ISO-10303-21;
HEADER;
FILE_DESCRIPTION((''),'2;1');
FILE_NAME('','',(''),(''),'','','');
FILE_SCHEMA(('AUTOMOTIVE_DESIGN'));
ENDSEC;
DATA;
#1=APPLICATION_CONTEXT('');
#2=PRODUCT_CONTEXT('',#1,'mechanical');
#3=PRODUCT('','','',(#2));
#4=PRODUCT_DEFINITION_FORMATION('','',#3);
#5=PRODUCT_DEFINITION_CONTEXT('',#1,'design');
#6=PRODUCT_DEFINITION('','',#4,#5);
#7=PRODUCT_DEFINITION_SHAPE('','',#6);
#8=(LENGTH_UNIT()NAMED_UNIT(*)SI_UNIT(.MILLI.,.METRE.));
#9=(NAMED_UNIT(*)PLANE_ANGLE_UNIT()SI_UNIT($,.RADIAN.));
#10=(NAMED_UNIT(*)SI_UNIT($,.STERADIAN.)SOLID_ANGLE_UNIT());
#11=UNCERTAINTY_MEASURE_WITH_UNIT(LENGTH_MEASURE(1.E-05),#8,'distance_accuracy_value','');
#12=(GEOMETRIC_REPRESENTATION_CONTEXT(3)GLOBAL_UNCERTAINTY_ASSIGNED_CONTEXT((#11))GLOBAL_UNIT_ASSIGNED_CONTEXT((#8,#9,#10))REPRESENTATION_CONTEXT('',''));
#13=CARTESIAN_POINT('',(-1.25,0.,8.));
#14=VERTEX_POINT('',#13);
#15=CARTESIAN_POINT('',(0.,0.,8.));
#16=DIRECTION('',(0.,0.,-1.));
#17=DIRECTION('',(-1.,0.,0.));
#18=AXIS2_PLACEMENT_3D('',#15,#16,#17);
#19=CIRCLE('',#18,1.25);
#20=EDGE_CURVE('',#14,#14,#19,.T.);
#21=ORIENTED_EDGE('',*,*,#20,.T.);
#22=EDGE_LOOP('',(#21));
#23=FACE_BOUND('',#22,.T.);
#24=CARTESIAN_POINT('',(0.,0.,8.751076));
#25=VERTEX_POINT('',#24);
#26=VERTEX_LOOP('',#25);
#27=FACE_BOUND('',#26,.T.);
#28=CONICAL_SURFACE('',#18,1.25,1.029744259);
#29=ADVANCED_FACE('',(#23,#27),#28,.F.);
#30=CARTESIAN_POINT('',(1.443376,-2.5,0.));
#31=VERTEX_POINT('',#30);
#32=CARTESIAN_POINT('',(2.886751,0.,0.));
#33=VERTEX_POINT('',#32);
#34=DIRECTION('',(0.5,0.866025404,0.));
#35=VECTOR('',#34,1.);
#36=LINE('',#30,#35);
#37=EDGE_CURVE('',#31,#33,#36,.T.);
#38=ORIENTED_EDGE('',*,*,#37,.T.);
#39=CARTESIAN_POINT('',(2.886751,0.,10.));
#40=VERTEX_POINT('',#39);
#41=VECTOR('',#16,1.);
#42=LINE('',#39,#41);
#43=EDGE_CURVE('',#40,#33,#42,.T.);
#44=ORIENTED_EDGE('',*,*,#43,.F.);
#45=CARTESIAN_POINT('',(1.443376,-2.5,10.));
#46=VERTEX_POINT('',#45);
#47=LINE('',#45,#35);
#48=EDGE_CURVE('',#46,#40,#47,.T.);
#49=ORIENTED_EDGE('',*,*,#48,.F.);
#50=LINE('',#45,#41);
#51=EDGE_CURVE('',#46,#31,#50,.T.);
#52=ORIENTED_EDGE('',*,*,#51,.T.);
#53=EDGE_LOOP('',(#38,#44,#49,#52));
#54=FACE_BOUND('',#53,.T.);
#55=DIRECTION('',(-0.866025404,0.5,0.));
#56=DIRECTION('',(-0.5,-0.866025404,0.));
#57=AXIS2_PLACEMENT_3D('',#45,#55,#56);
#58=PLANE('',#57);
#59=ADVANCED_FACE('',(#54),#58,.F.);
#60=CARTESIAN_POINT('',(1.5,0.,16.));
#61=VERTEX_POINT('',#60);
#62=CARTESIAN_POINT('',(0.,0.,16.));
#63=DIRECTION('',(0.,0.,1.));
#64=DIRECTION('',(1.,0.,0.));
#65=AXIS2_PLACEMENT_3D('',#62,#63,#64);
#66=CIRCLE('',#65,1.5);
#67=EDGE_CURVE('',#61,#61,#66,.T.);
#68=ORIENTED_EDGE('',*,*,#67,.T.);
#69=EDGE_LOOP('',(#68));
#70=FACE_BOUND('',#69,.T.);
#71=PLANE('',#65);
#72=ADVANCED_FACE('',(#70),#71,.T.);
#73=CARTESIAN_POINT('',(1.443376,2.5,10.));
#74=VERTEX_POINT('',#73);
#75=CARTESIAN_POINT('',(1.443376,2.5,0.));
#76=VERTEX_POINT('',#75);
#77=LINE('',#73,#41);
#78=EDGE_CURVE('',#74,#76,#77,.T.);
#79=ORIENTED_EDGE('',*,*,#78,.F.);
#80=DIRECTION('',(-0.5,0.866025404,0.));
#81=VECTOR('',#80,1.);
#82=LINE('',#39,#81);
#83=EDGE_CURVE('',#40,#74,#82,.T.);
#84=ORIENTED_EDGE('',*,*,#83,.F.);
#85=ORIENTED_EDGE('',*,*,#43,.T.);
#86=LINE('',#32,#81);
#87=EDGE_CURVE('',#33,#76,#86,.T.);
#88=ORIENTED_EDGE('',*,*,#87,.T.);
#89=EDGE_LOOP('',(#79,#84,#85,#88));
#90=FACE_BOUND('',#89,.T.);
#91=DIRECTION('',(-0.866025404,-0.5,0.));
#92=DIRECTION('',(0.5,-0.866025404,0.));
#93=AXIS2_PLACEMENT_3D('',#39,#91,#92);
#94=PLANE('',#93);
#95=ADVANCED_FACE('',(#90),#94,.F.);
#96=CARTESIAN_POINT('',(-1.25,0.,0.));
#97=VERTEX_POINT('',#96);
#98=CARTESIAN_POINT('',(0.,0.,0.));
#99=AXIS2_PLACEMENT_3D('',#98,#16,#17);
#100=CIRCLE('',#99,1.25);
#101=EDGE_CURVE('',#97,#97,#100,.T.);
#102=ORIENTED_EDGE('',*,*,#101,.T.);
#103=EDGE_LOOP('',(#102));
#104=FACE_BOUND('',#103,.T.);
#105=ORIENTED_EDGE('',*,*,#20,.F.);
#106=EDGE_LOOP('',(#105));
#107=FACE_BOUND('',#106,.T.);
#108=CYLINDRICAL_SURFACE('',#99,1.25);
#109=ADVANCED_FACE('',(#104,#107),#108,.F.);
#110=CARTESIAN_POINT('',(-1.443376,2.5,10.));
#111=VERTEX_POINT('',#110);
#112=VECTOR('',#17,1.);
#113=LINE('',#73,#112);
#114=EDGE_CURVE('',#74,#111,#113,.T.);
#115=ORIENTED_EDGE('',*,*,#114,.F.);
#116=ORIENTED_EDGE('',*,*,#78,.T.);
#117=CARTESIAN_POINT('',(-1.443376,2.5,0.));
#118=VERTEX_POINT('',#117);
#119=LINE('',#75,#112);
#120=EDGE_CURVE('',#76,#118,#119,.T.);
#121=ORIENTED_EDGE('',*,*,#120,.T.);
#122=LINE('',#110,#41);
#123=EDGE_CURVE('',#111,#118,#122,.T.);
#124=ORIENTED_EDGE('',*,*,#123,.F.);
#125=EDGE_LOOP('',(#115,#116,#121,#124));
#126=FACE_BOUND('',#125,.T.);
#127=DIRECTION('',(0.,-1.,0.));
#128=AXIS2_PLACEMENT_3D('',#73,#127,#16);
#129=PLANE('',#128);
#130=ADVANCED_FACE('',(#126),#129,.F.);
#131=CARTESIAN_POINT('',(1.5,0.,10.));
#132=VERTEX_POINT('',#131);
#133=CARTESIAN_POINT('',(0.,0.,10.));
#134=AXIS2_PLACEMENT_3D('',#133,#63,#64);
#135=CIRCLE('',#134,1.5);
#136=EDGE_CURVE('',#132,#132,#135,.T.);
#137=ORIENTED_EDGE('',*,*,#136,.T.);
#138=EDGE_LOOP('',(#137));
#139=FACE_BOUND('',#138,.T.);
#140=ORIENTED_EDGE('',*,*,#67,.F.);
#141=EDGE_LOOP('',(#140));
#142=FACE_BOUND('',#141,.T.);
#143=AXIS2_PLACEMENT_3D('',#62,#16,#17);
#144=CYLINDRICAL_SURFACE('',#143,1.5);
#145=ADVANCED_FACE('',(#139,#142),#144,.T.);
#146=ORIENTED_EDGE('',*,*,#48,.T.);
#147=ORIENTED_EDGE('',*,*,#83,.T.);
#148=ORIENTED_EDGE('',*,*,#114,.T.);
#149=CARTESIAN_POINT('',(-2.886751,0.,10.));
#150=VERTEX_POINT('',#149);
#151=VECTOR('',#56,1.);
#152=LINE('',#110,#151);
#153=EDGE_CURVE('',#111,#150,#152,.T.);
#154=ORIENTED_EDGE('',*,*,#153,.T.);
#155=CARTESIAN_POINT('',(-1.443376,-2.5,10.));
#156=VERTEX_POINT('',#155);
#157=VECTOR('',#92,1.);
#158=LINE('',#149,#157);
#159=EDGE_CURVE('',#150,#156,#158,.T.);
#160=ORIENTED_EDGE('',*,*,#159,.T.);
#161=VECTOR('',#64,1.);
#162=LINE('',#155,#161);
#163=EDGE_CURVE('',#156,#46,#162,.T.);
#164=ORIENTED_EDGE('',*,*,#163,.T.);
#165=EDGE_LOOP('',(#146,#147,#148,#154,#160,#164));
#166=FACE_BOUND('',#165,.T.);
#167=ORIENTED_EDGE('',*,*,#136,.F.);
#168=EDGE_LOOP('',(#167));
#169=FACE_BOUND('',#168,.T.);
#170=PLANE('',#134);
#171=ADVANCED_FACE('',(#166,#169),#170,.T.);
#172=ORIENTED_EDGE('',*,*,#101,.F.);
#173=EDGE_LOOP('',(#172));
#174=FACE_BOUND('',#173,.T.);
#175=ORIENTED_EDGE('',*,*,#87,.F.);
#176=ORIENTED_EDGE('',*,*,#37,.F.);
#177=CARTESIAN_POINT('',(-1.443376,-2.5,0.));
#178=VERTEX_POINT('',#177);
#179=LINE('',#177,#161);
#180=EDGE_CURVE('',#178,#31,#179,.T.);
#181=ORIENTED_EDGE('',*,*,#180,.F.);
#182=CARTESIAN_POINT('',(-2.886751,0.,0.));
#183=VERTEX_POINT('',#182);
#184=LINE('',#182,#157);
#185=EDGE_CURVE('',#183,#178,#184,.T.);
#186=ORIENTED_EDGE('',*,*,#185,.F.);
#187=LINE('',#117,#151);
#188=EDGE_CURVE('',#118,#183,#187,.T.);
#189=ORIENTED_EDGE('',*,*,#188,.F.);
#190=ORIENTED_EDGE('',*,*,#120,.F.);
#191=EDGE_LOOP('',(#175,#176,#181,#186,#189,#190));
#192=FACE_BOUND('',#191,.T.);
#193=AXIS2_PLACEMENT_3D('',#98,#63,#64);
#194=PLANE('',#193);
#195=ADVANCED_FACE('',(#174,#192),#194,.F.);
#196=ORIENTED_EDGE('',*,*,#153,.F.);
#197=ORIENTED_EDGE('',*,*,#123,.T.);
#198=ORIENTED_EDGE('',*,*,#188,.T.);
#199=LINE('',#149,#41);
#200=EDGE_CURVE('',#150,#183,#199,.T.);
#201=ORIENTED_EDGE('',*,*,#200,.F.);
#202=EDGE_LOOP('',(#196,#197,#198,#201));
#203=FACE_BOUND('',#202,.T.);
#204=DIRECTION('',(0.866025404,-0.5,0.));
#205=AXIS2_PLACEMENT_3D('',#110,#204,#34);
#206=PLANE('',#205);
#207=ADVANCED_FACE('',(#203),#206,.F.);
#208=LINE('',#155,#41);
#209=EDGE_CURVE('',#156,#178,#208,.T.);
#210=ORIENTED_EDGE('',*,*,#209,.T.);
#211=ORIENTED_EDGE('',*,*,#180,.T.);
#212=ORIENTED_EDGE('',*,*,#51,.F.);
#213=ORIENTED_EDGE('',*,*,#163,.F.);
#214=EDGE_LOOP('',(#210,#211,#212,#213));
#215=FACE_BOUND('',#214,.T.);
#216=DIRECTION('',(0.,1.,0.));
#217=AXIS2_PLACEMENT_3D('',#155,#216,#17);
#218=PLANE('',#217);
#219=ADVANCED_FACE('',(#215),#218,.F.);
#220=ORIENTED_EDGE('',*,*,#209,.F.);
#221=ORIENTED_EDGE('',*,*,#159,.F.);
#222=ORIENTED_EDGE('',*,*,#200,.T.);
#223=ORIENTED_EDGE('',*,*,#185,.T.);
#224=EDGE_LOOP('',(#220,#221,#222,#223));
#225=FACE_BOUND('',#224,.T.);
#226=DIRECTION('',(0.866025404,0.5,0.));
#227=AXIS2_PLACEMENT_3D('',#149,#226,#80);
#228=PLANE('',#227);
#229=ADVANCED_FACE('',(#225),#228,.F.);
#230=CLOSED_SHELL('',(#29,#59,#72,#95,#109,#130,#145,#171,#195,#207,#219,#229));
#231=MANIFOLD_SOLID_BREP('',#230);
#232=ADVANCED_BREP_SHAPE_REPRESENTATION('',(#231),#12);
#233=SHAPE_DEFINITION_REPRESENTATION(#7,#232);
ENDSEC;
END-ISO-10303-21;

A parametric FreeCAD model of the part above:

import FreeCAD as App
import Part
import Sketcher

V = App.Vector
Q = App.Units.Quantity


def add_polygon(sketch, points):
    """Adds a closed chain of lines whose ends are joined by coincident constraints."""
    first, n = sketch.GeometryCount, len(points)
    for a, b in zip(points, points[1:] + points[:1]):
        sketch.addGeometry(Part.LineSegment(App.Vector(*a, 0), App.Vector(*b, 0)), False)
    for i in range(n):
        sketch.addConstraint(Sketcher.Constraint("Coincident", first + i, 2, first + (i + 1) % n, 1))

doc = App.newDocument("Part")
body = doc.addObject("PartDesign::Body", "Body")

sketch1 = doc.addObject("Sketcher::SketchObject", "Sketch")
body.addObject(sketch1)
sketch1.AttachmentSupport = (doc.XY_Plane, [""])
sketch1.MapMode = "FlatFace"
add_polygon(sketch1, [(-1.443376, 2.5), (-2.886751, 0), (-1.443376, -2.5), (1.443376, -2.5), (2.886751, 0), (1.443376, 2.5)])
sketch1.addConstraint(Sketcher.Constraint("Horizontal", 2))
sketch1.addConstraint(Sketcher.Constraint("Horizontal", 5))
sketch1.addConstraint(Sketcher.Constraint("Symmetric", 0, 2, 3, 2, -1, 1))
sketch1.addConstraint(Sketcher.Constraint("Symmetric", 1, 2, 4, 2, -1, 1))
sketch1.addConstraint(Sketcher.Constraint("PointOnObject", 0, 2, -1))
sketch1.addConstraint(Sketcher.Constraint("Parallel", 0, 3))
sketch1.addConstraint(Sketcher.Constraint("Vertical", 2, 2, 4, 2))
sketch1.addConstraint(Sketcher.Constraint("Angle", 0, Q("-120 deg")))
sketch1.addConstraint(Sketcher.Constraint("DistanceY", 2, 2, 4, 2, Q("5 mm")))
sketch1.addConstraint(Sketcher.Constraint("DistanceX", 2, 1, 2, 2, Q("2.886751 mm")))
pad1 = doc.addObject("PartDesign::Pad", "Pad")
body.addObject(pad1)
pad1.Profile = sketch1
pad1.Length = 10

sketch2 = doc.addObject("Sketcher::SketchObject", "Sketch001")
body.addObject(sketch2)
sketch2.AttachmentSupport = (doc.XY_Plane, [""])
sketch2.MapMode = "FlatFace"
sketch2.AttachmentOffset = App.Placement(V(0, 0, 10), App.Rotation())
sketch2.addGeometry(Part.Circle(V(0, 0, 0), V(0, 0, 1), 1.5), False)
sketch2.addConstraint(Sketcher.Constraint("Coincident", 0, 3, -1, 1))
sketch2.addConstraint(Sketcher.Constraint("Diameter", 0, Q("3 mm")))
pad2 = doc.addObject("PartDesign::Pad", "Pad001")
body.addObject(pad2)
pad2.Profile = sketch2
pad2.Length = 6

sketch3 = doc.addObject("Sketcher::SketchObject", "Sketch002")
body.addObject(sketch3)
sketch3.AttachmentSupport = (doc.XY_Plane, [""])
sketch3.MapMode = "FlatFace"
sketch3.addGeometry(Part.Circle(V(0, 0, 0), V(0, 0, 1), 1.25), False)
sketch3.addConstraint(Sketcher.Constraint("Coincident", 0, 3, -1, 1))
sketch3.addConstraint(Sketcher.Constraint("Diameter", 0, Q("2.5 mm")))
doc.recompute()
hole = doc.addObject("PartDesign::Hole", "Hole")
body.addObject(hole)
hole.Profile = sketch3
hole.ThreadType = "None"
hole.Diameter = 2.5
hole.DepthType = "Dimension"
hole.Depth = 8
hole.DrillPoint = "Angled"
hole.DrillPointAngle = 118
hole.Reversed = True

doc.recompute()
